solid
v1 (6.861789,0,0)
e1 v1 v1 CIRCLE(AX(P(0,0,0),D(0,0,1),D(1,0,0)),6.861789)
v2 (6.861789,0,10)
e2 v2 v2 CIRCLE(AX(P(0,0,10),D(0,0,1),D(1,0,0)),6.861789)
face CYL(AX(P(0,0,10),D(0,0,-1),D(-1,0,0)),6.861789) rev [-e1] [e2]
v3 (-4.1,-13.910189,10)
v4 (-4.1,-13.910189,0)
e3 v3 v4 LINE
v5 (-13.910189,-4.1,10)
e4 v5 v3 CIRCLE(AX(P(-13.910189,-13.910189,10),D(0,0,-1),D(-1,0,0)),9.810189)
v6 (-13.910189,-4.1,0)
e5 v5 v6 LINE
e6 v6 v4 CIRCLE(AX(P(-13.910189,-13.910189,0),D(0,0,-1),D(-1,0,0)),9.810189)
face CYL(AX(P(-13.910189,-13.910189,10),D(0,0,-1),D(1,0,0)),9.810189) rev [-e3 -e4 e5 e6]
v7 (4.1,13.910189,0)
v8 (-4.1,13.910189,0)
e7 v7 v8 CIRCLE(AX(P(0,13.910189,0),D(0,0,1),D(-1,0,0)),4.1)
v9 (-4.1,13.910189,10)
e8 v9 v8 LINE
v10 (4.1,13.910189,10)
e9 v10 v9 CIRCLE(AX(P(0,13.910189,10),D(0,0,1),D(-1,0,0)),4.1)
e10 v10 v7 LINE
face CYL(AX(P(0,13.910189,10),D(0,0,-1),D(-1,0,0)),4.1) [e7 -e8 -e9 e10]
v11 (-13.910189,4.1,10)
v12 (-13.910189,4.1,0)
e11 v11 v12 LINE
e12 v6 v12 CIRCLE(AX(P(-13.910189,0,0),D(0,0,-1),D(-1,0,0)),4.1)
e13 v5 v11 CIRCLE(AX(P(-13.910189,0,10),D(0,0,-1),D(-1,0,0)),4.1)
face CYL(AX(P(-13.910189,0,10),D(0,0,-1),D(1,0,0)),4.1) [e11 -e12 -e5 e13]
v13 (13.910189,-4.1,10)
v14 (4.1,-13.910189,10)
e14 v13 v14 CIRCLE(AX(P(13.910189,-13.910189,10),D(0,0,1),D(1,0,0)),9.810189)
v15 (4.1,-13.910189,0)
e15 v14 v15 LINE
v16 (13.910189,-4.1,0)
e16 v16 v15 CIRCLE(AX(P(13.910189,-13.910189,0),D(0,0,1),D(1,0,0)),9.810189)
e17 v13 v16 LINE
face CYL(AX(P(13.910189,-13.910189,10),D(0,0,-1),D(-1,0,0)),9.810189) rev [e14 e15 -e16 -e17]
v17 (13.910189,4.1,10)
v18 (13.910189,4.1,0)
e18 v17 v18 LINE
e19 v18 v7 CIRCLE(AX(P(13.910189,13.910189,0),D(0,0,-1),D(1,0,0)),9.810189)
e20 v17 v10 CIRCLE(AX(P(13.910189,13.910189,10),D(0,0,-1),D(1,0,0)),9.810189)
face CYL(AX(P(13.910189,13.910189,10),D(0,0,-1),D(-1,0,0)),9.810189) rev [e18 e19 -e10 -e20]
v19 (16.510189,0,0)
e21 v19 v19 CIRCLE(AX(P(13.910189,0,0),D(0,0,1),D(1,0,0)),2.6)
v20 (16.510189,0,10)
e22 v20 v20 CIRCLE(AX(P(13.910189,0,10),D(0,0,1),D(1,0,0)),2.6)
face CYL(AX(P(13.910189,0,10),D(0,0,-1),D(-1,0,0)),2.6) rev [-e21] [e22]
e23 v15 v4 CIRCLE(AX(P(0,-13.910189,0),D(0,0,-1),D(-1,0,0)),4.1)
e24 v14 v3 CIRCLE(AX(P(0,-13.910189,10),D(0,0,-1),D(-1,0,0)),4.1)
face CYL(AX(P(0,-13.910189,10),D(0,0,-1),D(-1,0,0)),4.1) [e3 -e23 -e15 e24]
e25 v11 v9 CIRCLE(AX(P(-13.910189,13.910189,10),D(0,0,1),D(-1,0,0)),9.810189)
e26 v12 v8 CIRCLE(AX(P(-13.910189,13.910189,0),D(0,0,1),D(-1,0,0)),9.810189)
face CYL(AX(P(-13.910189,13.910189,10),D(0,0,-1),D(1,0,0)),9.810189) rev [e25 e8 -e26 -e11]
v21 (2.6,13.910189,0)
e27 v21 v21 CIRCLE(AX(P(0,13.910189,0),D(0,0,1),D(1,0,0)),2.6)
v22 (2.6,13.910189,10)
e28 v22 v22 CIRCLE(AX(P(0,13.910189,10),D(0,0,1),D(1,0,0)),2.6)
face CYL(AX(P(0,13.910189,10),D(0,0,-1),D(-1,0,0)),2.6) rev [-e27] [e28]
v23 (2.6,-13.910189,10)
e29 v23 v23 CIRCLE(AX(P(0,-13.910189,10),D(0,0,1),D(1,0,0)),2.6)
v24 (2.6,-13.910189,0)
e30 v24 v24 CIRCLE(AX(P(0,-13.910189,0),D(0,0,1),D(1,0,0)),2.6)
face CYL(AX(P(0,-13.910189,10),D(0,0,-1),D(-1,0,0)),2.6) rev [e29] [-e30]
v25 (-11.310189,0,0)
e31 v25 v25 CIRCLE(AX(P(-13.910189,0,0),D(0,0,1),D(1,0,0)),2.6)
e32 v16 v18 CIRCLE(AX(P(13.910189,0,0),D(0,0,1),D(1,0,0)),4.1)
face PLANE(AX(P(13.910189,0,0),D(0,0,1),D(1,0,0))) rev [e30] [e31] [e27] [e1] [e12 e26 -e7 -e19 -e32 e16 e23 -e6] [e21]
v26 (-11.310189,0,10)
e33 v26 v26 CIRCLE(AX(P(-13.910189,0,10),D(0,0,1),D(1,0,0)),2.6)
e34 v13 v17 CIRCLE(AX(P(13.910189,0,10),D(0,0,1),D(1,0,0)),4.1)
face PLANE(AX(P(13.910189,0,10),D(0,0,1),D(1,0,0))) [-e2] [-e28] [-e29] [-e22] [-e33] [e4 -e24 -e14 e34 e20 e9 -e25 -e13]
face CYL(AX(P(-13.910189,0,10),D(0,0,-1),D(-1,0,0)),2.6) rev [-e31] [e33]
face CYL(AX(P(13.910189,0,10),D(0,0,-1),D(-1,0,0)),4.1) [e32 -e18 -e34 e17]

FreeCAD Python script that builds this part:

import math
import FreeCAD as App
import Part
import Sketcher

V = App.Vector

doc = App.newDocument("Part")
body = doc.addObject("PartDesign::Body", "Body")

# Sketch on XY plane
sketch1 = body.newObject("Sketcher::SketchObject", "Sketch")
sketch1.AttachmentSupport = (doc.getObject("XY_Plane"), [""])
sketch1.MapMode = "FlatFace"
sketch1.addGeometry([
    Part.LineSegment(V(0, 18, 0), V(0, 0, 0)),  # 0
    Part.LineSegment(V(0, 0, 0), V(18, 0, 0)),  # 1
    Part.ArcOfCircle(Part.Circle(V(13.9, 0, 0), V(0, 0, 1), 4.1), math.radians(0), math.radians(90)),  # 2
    Part.ArcOfCircle(Part.Circle(V(13.9, 13.9, 0), V(0, 0, 1), 9.8), math.radians(180), math.radians(270)),  # 3
    Part.ArcOfCircle(Part.Circle(V(0, 13.9, 0), V(0, 0, 1), 4.1), math.radians(0), math.radians(90)),  # 4
], False)
sketch1.addConstraint([
    Sketcher.Constraint("Coincident", 0, 2, 1, 1),
    Sketcher.Constraint("Coincident", 1, 2, 2, 1),
    Sketcher.Constraint("Tangent", 2, 2, 3, 2),
    Sketcher.Constraint("Tangent", 3, 1, 4, 1),
    Sketcher.Constraint("Coincident", 4, 2, 0, 1),
    Sketcher.Constraint("Vertical", 0),
    Sketcher.Constraint("Horizontal", 1),
    Sketcher.Constraint("Coincident", 0, 2, -1, 1),
    Sketcher.Constraint("Equal", 2, 4),
    Sketcher.Constraint("PointOnObject", 2, 3, -1),
    Sketcher.Constraint("PointOnObject", 4, 3, -2),
    Sketcher.Constraint("Horizontal", 3, 3, 4, 3),
    Sketcher.Constraint("Vertical", 2, 3, 3, 3),
    Sketcher.Constraint("Radius", 2, 4.1),
    Sketcher.Constraint("Radius", 3, 9.810189),
])
pad1 = body.newObject("PartDesign::Pad", "Pad")
pad1.Profile = sketch1
pad1.Length = 10
body2 = doc.addObject("PartDesign::Body", "Body001")
doc.recompute()

body2.BaseFeature = body
doc.recompute()

mirroring = doc.addObject("Part::Mirroring", "Mirroring")
mirroring.Source = body
mirroring.Base = V(0, 0, 0)
mirroring.Normal = V(0, 1, 0)
body3 = doc.addObject("PartDesign::Body", "Body002")
body3.BaseFeature = mirroring
boolean = body2.newObject("PartDesign::Boolean", "Boolean")
boolean.Type = "Fuse"
boolean.addObjects([body3])
doc.recompute()
body4 = doc.addObject("PartDesign::Body", "Body003")
doc.recompute()

body4.BaseFeature = body2
doc.recompute()

mirroring2 = doc.addObject("Part::Mirroring", "Mirroring001")
mirroring2.Source = body2
mirroring2.Base = V(0, 0, 0)
mirroring2.Normal = V(1, 0, 0)
body5 = doc.addObject("PartDesign::Body", "Body004")
body5.BaseFeature = mirroring2
boolean2 = body4.newObject("PartDesign::Boolean", "Boolean001")
boolean2.Type = "Fuse"
boolean2.addObjects([body5])
doc.recompute()

# Sketch on XY plane
sketch2 = body4.newObject("Sketcher::SketchObject", "Sketch001")
sketch2.AttachmentSupport = (doc.getObject("XY_Plane003"), [""])
sketch2.MapMode = "FlatFace"
sketch2.addGeometry([
    Part.Circle(V(0, 13.9, 0), V(0, 0, 1), 2.6),
    Part.Circle(V(13.9, 0, 0), V(0, 0, 1), 2.6),
    Part.Circle(V(0, -13.9, 0), V(0, 0, 1), 2.6),
    Part.Circle(V(-13.9, 0, 0), V(0, 0, 1), 2.6),
], False)
sketch2.addConstraint([
    Sketcher.Constraint("Equal", 0, 1),
    Sketcher.Constraint("Equal", 1, 2),
    Sketcher.Constraint("Equal", 2, 3),
    Sketcher.Constraint("Symmetric", 0, 3, 2, 3, -1, 1),
    Sketcher.Constraint("Symmetric", 1, 3, 3, 3, -1, 1),
    Sketcher.Constraint("PointOnObject", 0, 3, -2),
    Sketcher.Constraint("PointOnObject", 1, 3, -1),
    Sketcher.Constraint("Diameter", 0, 5.2),
    Sketcher.Constraint("DistanceY", -1, 1, 0, 3, 13.910189),
    Sketcher.Constraint("DistanceX", -1, 1, 1, 3, 13.910189),
])
pocket1 = body4.newObject("PartDesign::Pocket", "Pocket")
pocket1.Profile = sketch2
pocket1.Length = 10
pocket1.Reversed = True

# Sketch on XY plane
sketch3 = body4.newObject("Sketcher::SketchObject", "Sketch002")
sketch3.AttachmentSupport = (doc.getObject("XY_Plane003"), [""])
sketch3.MapMode = "FlatFace"
sketch3.addGeometry(Part.Circle(V(0, 0, 0), V(0, 0, 1), 7), False)
sketch3.addConstraint([
    Sketcher.Constraint("Coincident", 0, 3, -1, 1),
    Sketcher.Constraint("Diameter", 0, 13.723578),
])
pocket2 = body4.newObject("PartDesign::Pocket", "Pocket001")
pocket2.Profile = sketch3
pocket2.Length = 10
pocket2.Reversed = True
mirroring.Visibility = False
mirroring2.Visibility = False

doc.recompute()
